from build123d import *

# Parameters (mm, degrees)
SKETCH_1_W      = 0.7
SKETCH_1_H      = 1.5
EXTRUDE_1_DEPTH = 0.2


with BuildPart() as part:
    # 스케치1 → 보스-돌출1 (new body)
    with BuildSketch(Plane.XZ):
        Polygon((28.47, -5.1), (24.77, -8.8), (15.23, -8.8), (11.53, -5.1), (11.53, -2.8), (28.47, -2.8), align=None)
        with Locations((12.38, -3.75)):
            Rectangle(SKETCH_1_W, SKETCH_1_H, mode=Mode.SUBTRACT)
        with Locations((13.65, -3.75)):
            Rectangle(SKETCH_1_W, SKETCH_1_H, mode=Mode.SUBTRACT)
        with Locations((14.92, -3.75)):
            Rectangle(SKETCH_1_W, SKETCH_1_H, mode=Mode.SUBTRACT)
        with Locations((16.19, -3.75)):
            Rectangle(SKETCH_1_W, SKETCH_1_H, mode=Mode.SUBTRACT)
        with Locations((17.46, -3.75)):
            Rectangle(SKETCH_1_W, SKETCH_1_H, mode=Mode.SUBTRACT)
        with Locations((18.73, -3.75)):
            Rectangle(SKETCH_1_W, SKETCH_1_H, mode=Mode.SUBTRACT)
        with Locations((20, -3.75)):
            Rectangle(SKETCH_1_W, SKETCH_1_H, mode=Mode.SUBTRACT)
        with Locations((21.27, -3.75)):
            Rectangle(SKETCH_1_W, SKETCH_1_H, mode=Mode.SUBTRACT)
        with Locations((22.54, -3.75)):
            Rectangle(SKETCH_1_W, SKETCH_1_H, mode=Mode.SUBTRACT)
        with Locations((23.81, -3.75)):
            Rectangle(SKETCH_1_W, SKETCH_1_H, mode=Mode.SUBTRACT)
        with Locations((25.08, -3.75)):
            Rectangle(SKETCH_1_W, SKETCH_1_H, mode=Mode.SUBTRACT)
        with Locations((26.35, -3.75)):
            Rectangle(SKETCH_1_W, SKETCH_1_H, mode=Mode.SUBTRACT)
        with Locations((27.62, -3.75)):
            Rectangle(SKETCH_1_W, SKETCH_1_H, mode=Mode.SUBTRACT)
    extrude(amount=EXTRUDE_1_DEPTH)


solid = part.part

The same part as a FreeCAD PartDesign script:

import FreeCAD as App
import Part
import Sketcher

V = App.Vector


def add_polygon(sketch, points):
    """Adds a closed chain of lines whose ends are joined by coincident constraints."""
    first, n = sketch.GeometryCount, len(points)
    for a, b in zip(points, points[1:] + points[:1]):
        sketch.addGeometry(Part.LineSegment(App.Vector(*a, 0), App.Vector(*b, 0)), False)
    for i in range(n):
        sketch.addConstraint(Sketcher.Constraint("Coincident", first + i, 2, first + (i + 1) % n, 1))

doc = App.newDocument("Part")
body = doc.addObject("PartDesign::Body", "Body")

# Sketch on XZ plane
sketch1 = body.newObject("Sketcher::SketchObject", "Sketch")
sketch1.AttachmentSupport = (doc.getObject("XZ_Plane"), [""])
sketch1.MapMode = "FlatFace"
add_polygon(sketch1, [(24.77, -8.8), (28.47, -5.1), (28.47, -2.8), (11.53, -2.8), (11.53, -5.1), (15.23, -8.8)])  # lines 0-5
add_polygon(sketch1, [(27.27, -4.5), (27.27, -3), (27.97, -3), (27.97, -4.5)])  # lines 6-9
add_polygon(sketch1, [(26, -4.5), (26, -3), (26.7, -3), (26.7, -4.5)])  # lines 10-13
add_polygon(sketch1, [(24.73, -4.5), (24.73, -3), (25.43, -3), (25.43, -4.5)])  # lines 14-17
add_polygon(sketch1, [(23.46, -4.5), (23.46, -3), (24.16, -3), (24.16, -4.5)])  # lines 18-21
add_polygon(sketch1, [(22.19, -4.5), (22.19, -3), (22.89, -3), (22.89, -4.5)])  # lines 22-25
add_polygon(sketch1, [(20.92, -4.5), (20.92, -3), (21.62, -3), (21.62, -4.5)])  # lines 26-29
add_polygon(sketch1, [(19.65, -4.5), (19.65, -3), (20.35, -3), (20.35, -4.5)])  # lines 30-33
add_polygon(sketch1, [(18.38, -4.5), (18.38, -3), (19.08, -3), (19.08, -4.5)])  # lines 34-37
add_polygon(sketch1, [(17.11, -4.5), (17.11, -3), (17.81, -3), (17.81, -4.5)])  # lines 38-41
add_polygon(sketch1, [(15.84, -4.5), (15.84, -3), (16.54, -3), (16.54, -4.5)])  # lines 42-45
add_polygon(sketch1, [(14.57, -4.5), (14.57, -3), (15.27, -3), (15.27, -4.5)])  # lines 46-49
add_polygon(sketch1, [(13.3, -4.5), (13.3, -3), (14, -3), (14, -4.5)])  # lines 50-53
add_polygon(sketch1, [(12.03, -4.5), (12.03, -3), (12.73, -3), (12.73, -4.5)])  # lines 54-57
sketch1.addConstraint(Sketcher.Constraint("Vertical", 1))
sketch1.addConstraint(Sketcher.Constraint("Horizontal", 2))
sketch1.addConstraint(Sketcher.Constraint("Vertical", 3))
sketch1.addConstraint(Sketcher.Constraint("Horizontal", 5))
sketch1.addConstraint(Sketcher.Constraint("Vertical", 6))
sketch1.addConstraint(Sketcher.Constraint("Horizontal", 7))
sketch1.addConstraint(Sketcher.Constraint("Vertical", 8))
sketch1.addConstraint(Sketcher.Constraint("Horizontal", 9))
sketch1.addConstraint(Sketcher.Constraint("Vertical", 10))
sketch1.addConstraint(Sketcher.Constraint("Horizontal", 11))
sketch1.addConstraint(Sketcher.Constraint("Vertical", 12))
sketch1.addConstraint(Sketcher.Constraint("Horizontal", 13))
sketch1.addConstraint(Sketcher.Constraint("Vertical", 14))
sketch1.addConstraint(Sketcher.Constraint("Horizontal", 15))
sketch1.addConstraint(Sketcher.Constraint("Vertical", 16))
sketch1.addConstraint(Sketcher.Constraint("Horizontal", 17))
sketch1.addConstraint(Sketcher.Constraint("Vertical", 18))
sketch1.addConstraint(Sketcher.Constraint("Horizontal", 19))
sketch1.addConstraint(Sketcher.Constraint("Vertical", 20))
sketch1.addConstraint(Sketcher.Constraint("Horizontal", 21))
sketch1.addConstraint(Sketcher.Constraint("Vertical", 22))
sketch1.addConstraint(Sketcher.Constraint("Horizontal", 23))
sketch1.addConstraint(Sketcher.Constraint("Vertical", 24))
sketch1.addConstraint(Sketcher.Constraint("Horizontal", 25))
sketch1.addConstraint(Sketcher.Constraint("Vertical", 26))
sketch1.addConstraint(Sketcher.Constraint("Horizontal", 27))
sketch1.addConstraint(Sketcher.Constraint("Vertical", 28))
sketch1.addConstraint(Sketcher.Constraint("Horizontal", 29))
sketch1.addConstraint(Sketcher.Constraint("Vertical", 30))
sketch1.addConstraint(Sketcher.Constraint("Horizontal", 31))
sketch1.addConstraint(Sketcher.Constraint("Vertical", 32))
sketch1.addConstraint(Sketcher.Constraint("Horizontal", 33))
sketch1.addConstraint(Sketcher.Constraint("Vertical", 34))
sketch1.addConstraint(Sketcher.Constraint("Horizontal", 35))
sketch1.addConstraint(Sketcher.Constraint("Vertical", 36))
sketch1.addConstraint(Sketcher.Constraint("Horizontal", 37))
sketch1.addConstraint(Sketcher.Constraint("Vertical", 38))
sketch1.addConstraint(Sketcher.Constraint("Horizontal", 39))
sketch1.addConstraint(Sketcher.Constraint("Vertical", 40))
sketch1.addConstraint(Sketcher.Constraint("Horizontal", 41))
sketch1.addConstraint(Sketcher.Constraint("Vertical", 42))
sketch1.addConstraint(Sketcher.Constraint("Horizontal", 43))
sketch1.addConstraint(Sketcher.Constraint("Vertical", 44))
sketch1.addConstraint(Sketcher.Constraint("Horizontal", 45))
sketch1.addConstraint(Sketcher.Constraint("Vertical", 46))
sketch1.addConstraint(Sketcher.Constraint("Horizontal", 47))
sketch1.addConstraint(Sketcher.Constraint("Vertical", 48))
sketch1.addConstraint(Sketcher.Constraint("Horizontal", 49))
sketch1.addConstraint(Sketcher.Constraint("Vertical", 50))
sketch1.addConstraint(Sketcher.Constraint("Horizontal", 51))
sketch1.addConstraint(Sketcher.Constraint("Vertical", 52))
sketch1.addConstraint(Sketcher.Constraint("Horizontal", 53))
sketch1.addConstraint(Sketcher.Constraint("Vertical", 54))
sketch1.addConstraint(Sketcher.Constraint("Horizontal", 55))
sketch1.addConstraint(Sketcher.Constraint("Vertical", 56))
sketch1.addConstraint(Sketcher.Constraint("Horizontal", 57))
sketch1.addConstraint(Sketcher.Constraint("Perpendicular", 0, 4))
sketch1.addConstraint(Sketcher.Constraint("Horizontal", 0, 2, 3, 2))
sketch1.addConstraint(Sketcher.Constraint("Horizontal", 7, 2, 10, 2))
sketch1.addConstraint(Sketcher.Constraint("Horizontal", 9, 2, 12, 2))
sketch1.addConstraint(Sketcher.Constraint("Horizontal", 11, 2, 14, 2))
sketch1.addConstraint(Sketcher.Constraint("Horizontal", 13, 2, 16, 2))
sketch1.addConstraint(Sketcher.Constraint("Horizontal", 15, 2, 18, 2))
sketch1.addConstraint(Sketcher.Constraint("Horizontal", 17, 2, 20, 2))
sketch1.addConstraint(Sketcher.Constraint("Horizontal", 19, 2, 22, 2))
sketch1.addConstraint(Sketcher.Constraint("Horizontal", 21, 2, 24, 2))
sketch1.addConstraint(Sketcher.Constraint("Horizontal", 23, 2, 26, 2))
sketch1.addConstraint(Sketcher.Constraint("Horizontal", 25, 2, 28, 2))
sketch1.addConstraint(Sketcher.Constraint("Horizontal", 27, 2, 30, 2))
sketch1.addConstraint(Sketcher.Constraint("Horizontal", 29, 2, 32, 2))
sketch1.addConstraint(Sketcher.Constraint("Horizontal", 31, 2, 34, 2))
sketch1.addConstraint(Sketcher.Constraint("Horizontal", 33, 2, 36, 2))
sketch1.addConstraint(Sketcher.Constraint("Horizontal", 35, 2, 38, 2))
sketch1.addConstraint(Sketcher.Constraint("Horizontal", 37, 2, 40, 2))
sketch1.addConstraint(Sketcher.Constraint("Horizontal", 39, 2, 42, 2))
sketch1.addConstraint(Sketcher.Constraint("Horizontal", 41, 2, 44, 2))
sketch1.addConstraint(Sketcher.Constraint("Horizontal", 43, 2, 46, 2))
sketch1.addConstraint(Sketcher.Constraint("Horizontal", 45, 2, 48, 2))
sketch1.addConstraint(Sketcher.Constraint("Horizontal", 47, 2, 50, 2))
sketch1.addConstraint(Sketcher.Constraint("Horizontal", 49, 2, 52, 2))
sketch1.addConstraint(Sketcher.Constraint("Horizontal", 51, 2, 54, 2))
sketch1.addConstraint(Sketcher.Constraint("Horizontal", 53, 2, 56, 2))
sketch1.addConstraint(Sketcher.Constraint("Equal", 9, 11))
sketch1.addConstraint(Sketcher.Constraint("Equal", 13, 15))
sketch1.addConstraint(Sketcher.Constraint("Equal", 17, 19))
sketch1.addConstraint(Sketcher.Constraint("Equal", 21, 23))
sketch1.addConstraint(Sketcher.Constraint("Equal", 25, 27))
sketch1.addConstraint(Sketcher.Constraint("Equal", 29, 31))
sketch1.addConstraint(Sketcher.Constraint("Equal", 33, 35))
sketch1.addConstraint(Sketcher.Constraint("Equal", 37, 39))
sketch1.addConstraint(Sketcher.Constraint("Equal", 41, 43))
sketch1.addConstraint(Sketcher.Constraint("Equal", 45, 47))
sketch1.addConstraint(Sketcher.Constraint("Equal", 49, 51))
sketch1.addConstraint(Sketcher.Constraint("Equal", 53, 55))
sketch1.addConstraint(Sketcher.Constraint("Equal", 0, 4))
sketch1.addConstraint(Sketcher.Constraint("DistanceX", 7, 1, 7, 2, 0.7))
sketch1.addConstraint(Sketcher.Constraint("DistanceY", 1, 1, 1, 2, 2.3))
sketch1.addConstraint(Sketcher.Constraint("DistanceY", 6, 1, 6, 2, 1.5))
sketch1.addConstraint(Sketcher.Constraint("DistanceY", 6, 2, -1, 1, 3.0))
sketch1.addConstraint(Sketcher.Constraint("DistanceX", -1, 1, 10, 2, 26.0))
sketch1.addConstraint(Sketcher.Constraint("DistanceX", -1, 1, 51, 2, 14.0))
sketch1.addConstraint(Sketcher.Constraint("DistanceY", 4, 2, 2, 2, 6.0))
sketch1.addConstraint(Sketcher.Constraint("DistanceX", 2, 2, 2, 1, 16.94))
sketch1.addConstraint(Sketcher.Constraint("DistanceY", 0, 2, -1, 1, 5.1))
sketch1.addConstraint(Sketcher.Constraint("DistanceX", 6, 2, 1, 2, 1.2))
sketch1.addConstraint(Sketcher.Constraint("DistanceX", 2, 2, 54, 2, 0.5))
sketch1.addConstraint(Sketcher.Constraint("DistanceX", -1, 1, 0, 2, 28.47))
sketch1.addConstraint(Sketcher.Constraint("DistanceX", -1, 1, 14, 2, 24.73))
sketch1.addConstraint(Sketcher.Constraint("DistanceX", -1, 1, 18, 2, 23.46))
sketch1.addConstraint(Sketcher.Constraint("DistanceX", -1, 1, 22, 2, 22.19))
sketch1.addConstraint(Sketcher.Constraint("DistanceX", -1, 1, 26, 2, 20.92))
sketch1.addConstraint(Sketcher.Constraint("DistanceX", -1, 1, 30, 2, 19.65))
sketch1.addConstraint(Sketcher.Constraint("DistanceX", -1, 1, 34, 2, 18.38))
sketch1.addConstraint(Sketcher.Constraint("DistanceX", -1, 1, 38, 2, 17.11))
sketch1.addConstraint(Sketcher.Constraint("DistanceX", -1, 1, 42, 2, 15.84))
sketch1.addConstraint(Sketcher.Constraint("DistanceX", -1, 1, 46, 2, 14.57))
pad1 = body.newObject("PartDesign::Pad", "Pad")
pad1.Profile = sketch1
pad1.Length = 0.2

doc.recompute()
